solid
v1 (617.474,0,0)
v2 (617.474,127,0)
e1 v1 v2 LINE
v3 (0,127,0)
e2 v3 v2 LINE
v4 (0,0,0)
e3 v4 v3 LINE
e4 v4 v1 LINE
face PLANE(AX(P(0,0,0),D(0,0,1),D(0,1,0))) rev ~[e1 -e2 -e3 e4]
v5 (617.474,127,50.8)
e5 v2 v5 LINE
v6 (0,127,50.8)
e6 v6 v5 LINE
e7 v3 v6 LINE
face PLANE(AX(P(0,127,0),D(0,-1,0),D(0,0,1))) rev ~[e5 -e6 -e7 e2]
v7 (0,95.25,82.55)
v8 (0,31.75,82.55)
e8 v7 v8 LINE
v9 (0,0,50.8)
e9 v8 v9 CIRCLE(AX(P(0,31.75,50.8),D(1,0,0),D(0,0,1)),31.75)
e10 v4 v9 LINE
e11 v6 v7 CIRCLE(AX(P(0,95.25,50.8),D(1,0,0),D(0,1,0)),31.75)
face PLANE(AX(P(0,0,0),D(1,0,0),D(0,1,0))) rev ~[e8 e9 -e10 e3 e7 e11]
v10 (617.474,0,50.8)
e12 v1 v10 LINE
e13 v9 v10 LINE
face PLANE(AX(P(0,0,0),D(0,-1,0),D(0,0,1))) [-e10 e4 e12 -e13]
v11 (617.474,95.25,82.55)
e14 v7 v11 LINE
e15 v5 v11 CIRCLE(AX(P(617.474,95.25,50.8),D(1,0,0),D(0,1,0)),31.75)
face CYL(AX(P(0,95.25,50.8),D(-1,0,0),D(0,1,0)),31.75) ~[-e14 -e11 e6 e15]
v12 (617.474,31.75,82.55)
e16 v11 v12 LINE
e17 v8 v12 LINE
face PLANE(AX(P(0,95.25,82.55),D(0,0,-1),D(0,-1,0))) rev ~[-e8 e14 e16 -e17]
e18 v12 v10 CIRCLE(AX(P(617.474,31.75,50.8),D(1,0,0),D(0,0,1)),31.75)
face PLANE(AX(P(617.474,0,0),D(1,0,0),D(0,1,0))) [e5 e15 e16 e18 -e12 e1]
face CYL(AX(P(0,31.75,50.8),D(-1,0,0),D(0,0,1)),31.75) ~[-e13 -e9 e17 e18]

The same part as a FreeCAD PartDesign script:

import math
import FreeCAD as App
import Part
import Sketcher
Q = App.Units.Quantity

doc = App.newDocument("Part")
body = doc.addObject("PartDesign::Body", "Body")

# Sketch on YZ plane
sketch1 = doc.addObject("Sketcher::SketchObject", "Sketch")
body.addObject(sketch1)
sketch1.AttachmentSupport = (doc.YZ_Plane, [""])
sketch1.MapMode = "FlatFace"
sketch1.addGeometry([
    Part.LineSegment(App.Vector(0, 51, 0), App.Vector(0, 0, 0)),  # 0
    Part.LineSegment(App.Vector(0, 0, 0), App.Vector(127, 0, 0)),  # 1
    Part.LineSegment(App.Vector(127, 0, 0), App.Vector(127, 51, 0)),  # 2
    Part.ArcOfCircle(Part.Circle(App.Vector(95, 51, 0), App.Vector(0, 0, 1), 32), math.radians(0), math.radians(90)),  # 3
    Part.LineSegment(App.Vector(95, 83, 0), App.Vector(32, 83, 0)),  # 4
    Part.ArcOfCircle(Part.Circle(App.Vector(32, 51, 0), App.Vector(0, 0, 1), 32), math.radians(90), math.radians(180)),  # 5
], False)
sketch1.addConstraint([
    Sketcher.Constraint("Coincident", 0, 2, 1, 1),
    Sketcher.Constraint("Coincident", 1, 2, 2, 1),
    Sketcher.Constraint("Tangent", 2, 2, 3, 1),
    Sketcher.Constraint("Tangent", 3, 2, 4, 1),
    Sketcher.Constraint("Tangent", 4, 2, 5, 1),
    Sketcher.Constraint("Tangent", 5, 2, 0, 1),
    Sketcher.Constraint("Vertical", 0),
    Sketcher.Constraint("Horizontal", 1),
    Sketcher.Constraint("Vertical", 2),
    Sketcher.Constraint("Horizontal", 4),
    Sketcher.Constraint("Coincident", 0, 2, -1, 1),
    Sketcher.Constraint("Equal", 3, 5),
    Sketcher.Constraint("DistanceX", 1, 1, 1, 2, Q("5 in")),
    Sketcher.Constraint("Radius", 3, Q("1.25 in")),
    Sketcher.Constraint("DistanceY", 0, 2, 0, 1, Q("2 in")),
])
pad1 = doc.addObject("PartDesign::Pad", "Pad")
body.addObject(pad1)
pad1.Profile = sketch1
pad1.Length = Q("24.31 in")

doc.recompute()
